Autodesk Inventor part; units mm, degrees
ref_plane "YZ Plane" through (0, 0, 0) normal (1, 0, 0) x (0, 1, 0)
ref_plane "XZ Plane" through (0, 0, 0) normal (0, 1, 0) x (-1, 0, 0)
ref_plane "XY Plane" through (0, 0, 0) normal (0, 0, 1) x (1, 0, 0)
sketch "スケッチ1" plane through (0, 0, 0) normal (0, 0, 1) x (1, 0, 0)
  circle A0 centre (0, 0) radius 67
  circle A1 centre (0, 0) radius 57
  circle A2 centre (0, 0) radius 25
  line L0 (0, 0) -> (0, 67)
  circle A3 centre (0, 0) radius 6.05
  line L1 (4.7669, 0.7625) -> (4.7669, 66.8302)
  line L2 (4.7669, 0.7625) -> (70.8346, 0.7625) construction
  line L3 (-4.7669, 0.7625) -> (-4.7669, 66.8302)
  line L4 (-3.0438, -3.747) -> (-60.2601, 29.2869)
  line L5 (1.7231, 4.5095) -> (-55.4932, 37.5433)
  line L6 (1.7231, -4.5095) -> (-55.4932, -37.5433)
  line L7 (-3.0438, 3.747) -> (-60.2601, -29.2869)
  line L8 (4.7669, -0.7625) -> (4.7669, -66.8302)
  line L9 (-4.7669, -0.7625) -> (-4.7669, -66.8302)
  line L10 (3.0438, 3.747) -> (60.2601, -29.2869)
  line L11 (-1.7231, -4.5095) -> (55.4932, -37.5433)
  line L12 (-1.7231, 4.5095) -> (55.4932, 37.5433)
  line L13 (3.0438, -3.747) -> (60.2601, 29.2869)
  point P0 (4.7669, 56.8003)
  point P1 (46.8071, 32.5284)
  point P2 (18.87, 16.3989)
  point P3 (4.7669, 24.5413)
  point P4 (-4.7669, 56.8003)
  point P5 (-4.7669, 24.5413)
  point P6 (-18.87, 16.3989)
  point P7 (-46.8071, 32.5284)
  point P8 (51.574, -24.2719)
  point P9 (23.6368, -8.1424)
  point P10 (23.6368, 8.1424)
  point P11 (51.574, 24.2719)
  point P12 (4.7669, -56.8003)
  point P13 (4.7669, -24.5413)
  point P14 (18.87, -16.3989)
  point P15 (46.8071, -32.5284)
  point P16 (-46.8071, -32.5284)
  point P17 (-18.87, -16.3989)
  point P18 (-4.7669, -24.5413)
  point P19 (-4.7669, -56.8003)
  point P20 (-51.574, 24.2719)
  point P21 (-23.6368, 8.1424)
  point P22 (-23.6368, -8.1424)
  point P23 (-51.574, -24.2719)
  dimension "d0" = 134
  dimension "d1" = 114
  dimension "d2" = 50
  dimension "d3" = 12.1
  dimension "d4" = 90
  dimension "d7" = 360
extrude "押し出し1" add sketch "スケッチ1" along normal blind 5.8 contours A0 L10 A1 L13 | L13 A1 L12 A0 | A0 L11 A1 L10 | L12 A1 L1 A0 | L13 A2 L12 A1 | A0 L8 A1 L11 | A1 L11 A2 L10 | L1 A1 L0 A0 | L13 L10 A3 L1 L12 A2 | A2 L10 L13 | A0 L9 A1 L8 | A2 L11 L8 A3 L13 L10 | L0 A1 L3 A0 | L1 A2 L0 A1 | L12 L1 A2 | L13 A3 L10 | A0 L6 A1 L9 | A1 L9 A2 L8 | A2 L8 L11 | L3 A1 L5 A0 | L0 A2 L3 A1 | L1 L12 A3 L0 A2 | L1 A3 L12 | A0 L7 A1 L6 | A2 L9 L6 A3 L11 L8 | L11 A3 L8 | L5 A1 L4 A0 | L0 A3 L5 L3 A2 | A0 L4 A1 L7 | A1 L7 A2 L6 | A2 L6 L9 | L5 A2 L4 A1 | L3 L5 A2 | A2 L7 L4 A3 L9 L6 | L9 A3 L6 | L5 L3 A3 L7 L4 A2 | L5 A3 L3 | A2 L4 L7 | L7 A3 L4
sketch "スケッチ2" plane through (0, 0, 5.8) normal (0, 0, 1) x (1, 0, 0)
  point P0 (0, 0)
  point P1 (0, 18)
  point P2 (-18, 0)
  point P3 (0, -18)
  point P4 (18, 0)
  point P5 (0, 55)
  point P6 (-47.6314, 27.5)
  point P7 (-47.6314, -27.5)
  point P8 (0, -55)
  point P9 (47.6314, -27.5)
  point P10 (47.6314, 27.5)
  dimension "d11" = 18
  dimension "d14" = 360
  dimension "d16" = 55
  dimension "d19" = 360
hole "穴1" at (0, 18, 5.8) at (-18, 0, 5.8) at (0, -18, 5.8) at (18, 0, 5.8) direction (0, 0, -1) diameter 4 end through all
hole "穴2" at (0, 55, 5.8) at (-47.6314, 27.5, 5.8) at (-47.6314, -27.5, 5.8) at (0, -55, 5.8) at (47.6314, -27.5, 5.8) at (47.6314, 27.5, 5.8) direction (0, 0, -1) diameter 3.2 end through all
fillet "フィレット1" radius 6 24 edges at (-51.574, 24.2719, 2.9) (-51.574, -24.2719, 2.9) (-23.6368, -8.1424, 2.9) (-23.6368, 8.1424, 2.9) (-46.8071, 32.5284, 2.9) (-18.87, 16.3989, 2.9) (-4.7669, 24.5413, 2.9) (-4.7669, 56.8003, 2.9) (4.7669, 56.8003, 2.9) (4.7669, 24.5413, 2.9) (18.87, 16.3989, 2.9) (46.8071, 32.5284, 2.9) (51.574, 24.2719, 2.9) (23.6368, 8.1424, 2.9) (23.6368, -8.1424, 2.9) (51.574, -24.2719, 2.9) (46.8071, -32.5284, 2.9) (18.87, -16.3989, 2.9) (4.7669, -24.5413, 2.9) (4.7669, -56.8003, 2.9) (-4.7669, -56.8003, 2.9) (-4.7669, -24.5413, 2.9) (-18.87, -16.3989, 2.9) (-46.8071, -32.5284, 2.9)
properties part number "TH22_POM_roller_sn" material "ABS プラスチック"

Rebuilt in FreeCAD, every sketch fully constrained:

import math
import FreeCAD as App
import Part
import Sketcher

V = App.Vector
Q = App.Units.Quantity


def edges_at(feature, points):
    """Names of the edges that pass closest to the given points."""
    edges = feature.Shape.Edges
    near = lambda p: min(range(len(edges)), key=lambda i: edges[i].distToShape(Part.Vertex(*p))[0])
    return sorted({f"Edge{near(p) + 1}" for p in points})

doc = App.newDocument("Part")
body = doc.addObject("PartDesign::Body", "Body")

sketch1 = doc.addObject("Sketcher::SketchObject", "Sketch")
body.addObject(sketch1)
sketch1.AttachmentSupport = (doc.XY_Plane, [""])
sketch1.MapMode = "FlatFace"
sketch1.addGeometry([
    Part.Circle(V(0, 0, 0), V(0, 0, 1), 67),
    Part.LineSegment(V(52, -24, 0), V(24, -8, 0)),
    Part.ArcOfCircle(Part.Circle(V(0, 0, 0), V(0, 0, 1), 25), math.radians(-19), math.radians(19)),
    Part.LineSegment(V(24, 8, 0), V(52, 24, 0)),
    Part.ArcOfCircle(Part.Circle(V(0, 0, 0), V(0, 0, 1), 57), math.radians(-25), math.radians(25)),
    Part.ArcOfCircle(Part.Circle(V(0, 0, 0), V(0, 0, 1), 57), math.radians(-85), math.radians(-35)),
    Part.LineSegment(V(5, -57, 0), V(5, -25, 0)),
    Part.ArcOfCircle(Part.Circle(V(0, 0, 0), V(0, 0, 1), 25), math.radians(-79), math.radians(-41)),
    Part.LineSegment(V(19, -16, 0), V(47, -33, 0)),
    Part.LineSegment(V(47, 33, 0), V(19, 16, 0)),
    Part.ArcOfCircle(Part.Circle(V(0, 0, 0), V(0, 0, 1), 25), math.radians(41), math.radians(79)),
    Part.LineSegment(V(5, 25, 0), V(5, 57, 0)),
    Part.ArcOfCircle(Part.Circle(V(0, 0, 0), V(0, 0, 1), 57), math.radians(35), math.radians(85)),
    Part.Circle(V(0, 0, 0), V(0, 0, 1), 6),
    Part.ArcOfCircle(Part.Circle(V(0, 0, 0), V(0, 0, 1), 57), math.radians(-145), math.radians(-95)),
    Part.LineSegment(V(-47, -33, 0), V(-19, -16, 0)),
    Part.ArcOfCircle(Part.Circle(V(0, 0, 0), V(0, 0, 1), 25), math.radians(-139), math.radians(-101)),
    Part.LineSegment(V(-5, -25, 0), V(-5, -57, 0)),
    Part.LineSegment(V(-5, 57, 0), V(-5, 25, 0)),
    Part.ArcOfCircle(Part.Circle(V(0, 0, 0), V(0, 0, 1), 25), math.radians(101), math.radians(139)),
    Part.LineSegment(V(-19, 16, 0), V(-47, 33, 0)),
    Part.ArcOfCircle(Part.Circle(V(0, 0, 0), V(0, 0, 1), 57), math.radians(95), math.radians(145)),
    Part.ArcOfCircle(Part.Circle(V(0, 0, 0), V(0, 0, 1), 57), math.radians(155), math.radians(205)),
    Part.LineSegment(V(-52, 24, 0), V(-24, 8, 0)),
    Part.ArcOfCircle(Part.Circle(V(0, 0, 0), V(0, 0, 1), 25), math.radians(161), math.radians(199)),
    Part.LineSegment(V(-24, -8, 0), V(-52, -24, 0)),
], False)
sketch1.addConstraint([
    Sketcher.Constraint("Coincident", 1, 2, 2, 1),
    Sketcher.Constraint("Coincident", 2, 2, 3, 1),
    Sketcher.Constraint("Coincident", 3, 2, 4, 2),
    Sketcher.Constraint("Coincident", 4, 1, 1, 1),
    Sketcher.Constraint("Coincident", 5, 1, 6, 1),
    Sketcher.Constraint("Coincident", 6, 2, 7, 1),
    Sketcher.Constraint("Coincident", 7, 2, 8, 1),
    Sketcher.Constraint("Coincident", 8, 2, 5, 2),
    Sketcher.Constraint("Coincident", 9, 2, 10, 1),
    Sketcher.Constraint("Coincident", 10, 2, 11, 1),
    Sketcher.Constraint("Coincident", 11, 2, 12, 2),
    Sketcher.Constraint("Coincident", 12, 1, 9, 1),
    Sketcher.Constraint("Coincident", 14, 1, 15, 1),
    Sketcher.Constraint("Coincident", 15, 2, 16, 1),
    Sketcher.Constraint("Coincident", 16, 2, 17, 1),
    Sketcher.Constraint("Coincident", 17, 2, 14, 2),
    Sketcher.Constraint("Coincident", 18, 2, 19, 1),
    Sketcher.Constraint("Coincident", 19, 2, 20, 1),
    Sketcher.Constraint("Coincident", 20, 2, 21, 2),
    Sketcher.Constraint("Coincident", 21, 1, 18, 1),
    Sketcher.Constraint("Coincident", 22, 1, 23, 1),
    Sketcher.Constraint("Coincident", 23, 2, 24, 1),
    Sketcher.Constraint("Coincident", 24, 2, 25, 1),
    Sketcher.Constraint("Coincident", 25, 2, 22, 2),
    Sketcher.Constraint("Vertical", 6),
    Sketcher.Constraint("Vertical", 11),
    Sketcher.Constraint("Vertical", 17),
    Sketcher.Constraint("Vertical", 18),
    Sketcher.Constraint("Coincident", 0, 3, -1, 1),
    Sketcher.Constraint("Coincident", 2, 3, -1, 1),
    Sketcher.Constraint("Coincident", 4, 3, -1, 1),
    Sketcher.Constraint("Coincident", 5, 3, -1, 1),
    Sketcher.Constraint("Coincident", 7, 3, -1, 1),
    Sketcher.Constraint("Coincident", 10, 3, -1, 1),
    Sketcher.Constraint("Coincident", 12, 3, -1, 1),
    Sketcher.Constraint("Coincident", 13, 3, -1, 1),
    Sketcher.Constraint("Coincident", 14, 3, -1, 1),
    Sketcher.Constraint("Coincident", 16, 3, -1, 1),
    Sketcher.Constraint("Coincident", 19, 3, -1, 1),
    Sketcher.Constraint("Coincident", 21, 3, -1, 1),
    Sketcher.Constraint("Coincident", 22, 3, -1, 1),
    Sketcher.Constraint("Coincident", 24, 3, -1, 1),
    Sketcher.Constraint("Equal", 4, 5),
    Sketcher.Constraint("Equal", 2, 7),
    Sketcher.Constraint("Equal", 7, 10),
    Sketcher.Constraint("Equal", 5, 12),
    Sketcher.Constraint("Equal", 12, 14),
    Sketcher.Constraint("Equal", 10, 16),
    Sketcher.Constraint("Equal", 16, 19),
    Sketcher.Constraint("Equal", 14, 21),
    Sketcher.Constraint("Equal", 21, 22),
    Sketcher.Constraint("Equal", 19, 24),
    Sketcher.Constraint("Parallel", 1, 8),
    Sketcher.Constraint("Parallel", 3, 9),
    Sketcher.Constraint("Parallel", 9, 15),
    Sketcher.Constraint("Parallel", 8, 20),
    Sketcher.Constraint("Parallel", 20, 23),
    Sketcher.Constraint("Parallel", 15, 25),
    Sketcher.Constraint("Horizontal", 8, 2, 14, 1),
    Sketcher.Constraint("Horizontal", 7, 2, 15, 2),
    Sketcher.Constraint("Horizontal", 6, 2, 16, 2),
    Sketcher.Constraint("Horizontal", 10, 2, 18, 2),
    Sketcher.Constraint("Horizontal", 9, 2, 19, 2),
    Sketcher.Constraint("Horizontal", 3, 2, 22, 1),
    Sketcher.Constraint("Horizontal", 1, 2, 24, 2),
    Sketcher.Constraint("Vertical", 1, 2, 2, 2),
    Sketcher.Constraint("Vertical", 7, 2, 9, 2),
    Sketcher.Constraint("Vertical", 6, 2, 10, 2),
    Sketcher.Constraint("Equal", 3, 8),
    Sketcher.Constraint("Diameter", 0, 134.0),
    Sketcher.Constraint("Radius", 2, 25.0),
    Sketcher.Constraint("Radius", 4, 57.0),
    Sketcher.Constraint("Diameter", 13, 12.1),
    Sketcher.Constraint("Angle", 1, Q("150 deg")),
    Sketcher.Constraint("DistanceY", 6, 1, 6, 2, 32.259),
    Sketcher.Constraint("DistanceX", -1, 1, 7, 2, 18.87),
])
pad1 = doc.addObject("PartDesign::Pad", "Pad")
body.addObject(pad1)
pad1.Profile = sketch1
pad1.Length = 5.8

sketch2 = doc.addObject("Sketcher::SketchObject", "Sketch001")
body.addObject(sketch2)
sketch2.AttachmentSupport = (doc.XY_Plane, [""])
sketch2.MapMode = "FlatFace"
sketch2.AttachmentOffset = App.Placement(V(0, 0, 5.8), App.Rotation())
sketch2.addGeometry([
    Part.Circle(V(0, 18, 0), V(0, 0, 1), 2),
    Part.Circle(V(-18, 0, 0), V(0, 0, 1), 2),
    Part.Circle(V(0, -18, 0), V(0, 0, 1), 2),
    Part.Circle(V(18, 0, 0), V(0, 0, 1), 2),
], False)
sketch2.addConstraint([
    Sketcher.Constraint("Equal", 0, 1),
    Sketcher.Constraint("Equal", 1, 2),
    Sketcher.Constraint("Equal", 2, 3),
    Sketcher.Constraint("Symmetric", 0, 3, 2, 3, -1, 1),
    Sketcher.Constraint("Symmetric", 1, 3, 3, 3, -1, 1),
    Sketcher.Constraint("PointOnObject", 0, 3, -2),
    Sketcher.Constraint("PointOnObject", 1, 3, -1),
    Sketcher.Constraint("Diameter", 0, 4.0),
    Sketcher.Constraint("DistanceY", -1, 1, 0, 3, 18.0),
    Sketcher.Constraint("DistanceX", 1, 3, -1, 1, 18.0),
])
doc.recompute()
hole = doc.addObject("PartDesign::Hole", "Hole")
body.addObject(hole)
hole.Profile = sketch2
hole.ThreadType = "None"
hole.Diameter = 4
hole.DepthType = "ThroughAll"

sketch3 = doc.addObject("Sketcher::SketchObject", "Sketch002")
body.addObject(sketch3)
sketch3.AttachmentSupport = (doc.XY_Plane, [""])
sketch3.MapMode = "FlatFace"
sketch3.AttachmentOffset = App.Placement(V(0, 0, 5.8), App.Rotation())
sketch3.addGeometry([
    Part.Circle(V(0, 55, 0), V(0, 0, 1), 1.6),
    Part.Circle(V(-47.6, 27.5, 0), V(0, 0, 1), 1.6),
    Part.Circle(V(-47.6, -27.5, 0), V(0, 0, 1), 1.6),
    Part.Circle(V(0, -55, 0), V(0, 0, 1), 1.6),
    Part.Circle(V(47.6, -27.5, 0), V(0, 0, 1), 1.6),
    Part.Circle(V(47.6, 27.5, 0), V(0, 0, 1), 1.6),
], False)
sketch3.addConstraint([
    Sketcher.Constraint("Equal", 0, 1),
    Sketcher.Constraint("Equal", 1, 2),
    Sketcher.Constraint("Equal", 2, 3),
    Sketcher.Constraint("Equal", 3, 4),
    Sketcher.Constraint("Equal", 4, 5),
    Sketcher.Constraint("Symmetric", 0, 3, 3, 3, -1, 1),
    Sketcher.Constraint("Symmetric", 1, 3, 4, 3, -1, 1),
    Sketcher.Constraint("Symmetric", 2, 3, 5, 3, -1, 1),
    Sketcher.Constraint("Symmetric", 2, 3, 4, 3, -2),
    Sketcher.Constraint("PointOnObject", 0, 3, -2),
    Sketcher.Constraint("Diameter", 0, 3.2),
    Sketcher.Constraint("DistanceY", -1, 1, 0, 3, 55.0),
    Sketcher.Constraint("DistanceY", 2, 3, 1, 3, 55.0),
    Sketcher.Constraint("DistanceX", 1, 3, -1, 1, 47.6314),
])
doc.recompute()
hole2 = doc.addObject("PartDesign::Hole", "Hole001")
body.addObject(hole2)
hole2.Profile = sketch3
hole2.ThreadType = "None"
hole2.Diameter = 3.2
hole2.DepthType = "ThroughAll"
doc.recompute()

fillet = doc.addObject("PartDesign::Fillet", "Fillet")
body.addObject(fillet)
fillet.Base = (hole2, edges_at(hole2, [
    (-51.574, 24.272, 2.9),
    (-51.574, -24.272, 2.9),
    (-23.637, -8.142, 2.9),
    (-23.637, 8.142, 2.9),
    (-46.807, 32.528, 2.9),
    (-18.87, 16.399, 2.9),
    (-4.767, 24.541, 2.9),
    (-4.767, 56.8, 2.9),
    (4.767, 56.8, 2.9),
    (4.767, 24.541, 2.9),
    (18.87, 16.399, 2.9),
    (46.807, 32.528, 2.9),
    (51.574, 24.272, 2.9),
    (23.637, 8.142, 2.9),
    (23.637, -8.142, 2.9),
    (51.574, -24.272, 2.9),
    (46.807, -32.528, 2.9),
    (18.87, -16.399, 2.9),
    (4.767, -24.541, 2.9),
    (4.767, -56.8, 2.9),
    (-4.767, -56.8, 2.9),
    (-4.767, -24.541, 2.9),
    (-18.87, -16.399, 2.9),
    (-46.807, -32.528, 2.9),
]))
fillet.Radius = 6

doc.recompute()
